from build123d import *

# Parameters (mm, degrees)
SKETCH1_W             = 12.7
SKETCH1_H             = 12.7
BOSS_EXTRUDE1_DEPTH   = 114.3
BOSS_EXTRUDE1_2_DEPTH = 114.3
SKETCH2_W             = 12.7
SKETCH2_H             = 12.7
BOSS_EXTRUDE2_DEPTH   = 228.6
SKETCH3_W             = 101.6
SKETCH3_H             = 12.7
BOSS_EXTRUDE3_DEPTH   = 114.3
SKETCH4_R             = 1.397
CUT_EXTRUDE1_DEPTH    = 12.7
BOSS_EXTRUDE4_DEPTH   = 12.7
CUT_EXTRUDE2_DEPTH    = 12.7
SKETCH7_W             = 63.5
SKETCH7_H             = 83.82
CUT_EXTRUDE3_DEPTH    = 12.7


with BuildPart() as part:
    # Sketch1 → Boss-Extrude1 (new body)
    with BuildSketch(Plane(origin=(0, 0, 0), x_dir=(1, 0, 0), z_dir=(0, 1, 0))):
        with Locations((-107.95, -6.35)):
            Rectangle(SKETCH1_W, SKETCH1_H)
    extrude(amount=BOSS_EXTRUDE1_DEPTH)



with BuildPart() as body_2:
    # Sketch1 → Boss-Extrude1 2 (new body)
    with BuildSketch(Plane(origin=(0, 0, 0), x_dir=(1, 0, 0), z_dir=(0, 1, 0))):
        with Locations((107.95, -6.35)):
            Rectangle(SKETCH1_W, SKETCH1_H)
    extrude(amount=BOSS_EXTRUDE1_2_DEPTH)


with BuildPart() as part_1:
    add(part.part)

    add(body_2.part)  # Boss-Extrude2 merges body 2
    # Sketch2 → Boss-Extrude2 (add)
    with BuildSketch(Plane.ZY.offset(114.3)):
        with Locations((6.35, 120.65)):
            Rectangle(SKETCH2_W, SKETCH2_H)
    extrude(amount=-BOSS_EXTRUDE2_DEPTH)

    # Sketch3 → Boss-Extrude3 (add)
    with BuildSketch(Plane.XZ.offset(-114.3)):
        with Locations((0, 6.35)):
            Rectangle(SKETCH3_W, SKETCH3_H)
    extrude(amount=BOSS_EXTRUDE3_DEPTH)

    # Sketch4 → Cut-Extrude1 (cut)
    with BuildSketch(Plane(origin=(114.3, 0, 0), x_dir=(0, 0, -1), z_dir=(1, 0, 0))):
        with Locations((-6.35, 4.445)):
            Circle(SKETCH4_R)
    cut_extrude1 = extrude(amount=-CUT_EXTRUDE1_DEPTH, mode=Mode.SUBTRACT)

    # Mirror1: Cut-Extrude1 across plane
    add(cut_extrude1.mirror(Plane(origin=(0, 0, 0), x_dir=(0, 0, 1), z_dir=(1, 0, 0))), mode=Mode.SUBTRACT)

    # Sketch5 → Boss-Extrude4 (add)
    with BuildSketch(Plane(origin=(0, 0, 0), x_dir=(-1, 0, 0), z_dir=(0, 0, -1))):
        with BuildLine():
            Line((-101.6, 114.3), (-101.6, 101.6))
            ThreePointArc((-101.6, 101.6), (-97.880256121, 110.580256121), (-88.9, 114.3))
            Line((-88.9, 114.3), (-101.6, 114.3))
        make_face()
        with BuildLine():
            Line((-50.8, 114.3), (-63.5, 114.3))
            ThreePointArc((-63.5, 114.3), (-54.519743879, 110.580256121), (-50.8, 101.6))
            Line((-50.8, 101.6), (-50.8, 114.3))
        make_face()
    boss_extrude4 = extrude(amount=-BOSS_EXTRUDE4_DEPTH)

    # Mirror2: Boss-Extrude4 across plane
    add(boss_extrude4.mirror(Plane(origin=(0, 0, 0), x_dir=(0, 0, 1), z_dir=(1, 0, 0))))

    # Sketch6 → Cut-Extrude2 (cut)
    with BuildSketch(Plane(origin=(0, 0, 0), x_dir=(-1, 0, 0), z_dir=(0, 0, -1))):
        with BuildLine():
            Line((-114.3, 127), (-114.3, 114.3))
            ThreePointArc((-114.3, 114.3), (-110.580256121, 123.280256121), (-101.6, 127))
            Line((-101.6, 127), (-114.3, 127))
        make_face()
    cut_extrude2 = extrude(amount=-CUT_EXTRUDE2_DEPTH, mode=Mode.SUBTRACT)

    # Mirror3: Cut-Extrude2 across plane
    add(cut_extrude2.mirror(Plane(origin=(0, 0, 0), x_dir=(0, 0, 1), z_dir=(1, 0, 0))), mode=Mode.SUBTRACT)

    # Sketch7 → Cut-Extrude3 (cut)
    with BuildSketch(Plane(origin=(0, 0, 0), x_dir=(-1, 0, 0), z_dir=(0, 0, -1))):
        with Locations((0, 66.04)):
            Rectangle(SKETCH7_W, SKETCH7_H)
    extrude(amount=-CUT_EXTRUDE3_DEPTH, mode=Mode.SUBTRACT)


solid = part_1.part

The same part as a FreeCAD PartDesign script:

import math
import FreeCAD as App
import Part
import Sketcher

V = App.Vector
Q = App.Units.Quantity

doc = App.newDocument("Part")
body = doc.addObject("PartDesign::Body", "Body")

sketch1 = doc.addObject("Sketcher::SketchObject", "Sketch")
body.addObject(sketch1)
sketch1.AttachmentSupport = (doc.XZ_Plane, [""])
sketch1.MapMode = "FlatFace"
sketch1.addGeometry(Part.LineSegment(V(-114, 0, 0), V(-114, 13, 0)), False)
sketch1.addGeometry(Part.LineSegment(V(-114, 13, 0), V(-102, 13, 0)), False)
sketch1.addGeometry(Part.LineSegment(V(-102, 13, 0), V(-102, 0, 0)), False)
sketch1.addGeometry(Part.LineSegment(V(-102, 0, 0), V(-114, 0, 0)), False)
sketch1.addConstraint(Sketcher.Constraint("Coincident", 0, 2, 1, 1))
sketch1.addConstraint(Sketcher.Constraint("Coincident", 1, 2, 2, 1))
sketch1.addConstraint(Sketcher.Constraint("Coincident", 2, 2, 3, 1))
sketch1.addConstraint(Sketcher.Constraint("Coincident", 3, 2, 0, 1))
sketch1.addConstraint(Sketcher.Constraint("Vertical", 0))
sketch1.addConstraint(Sketcher.Constraint("Horizontal", 1))
sketch1.addConstraint(Sketcher.Constraint("Vertical", 2))
sketch1.addConstraint(Sketcher.Constraint("Horizontal", 3))
sketch1.addConstraint(Sketcher.Constraint("PointOnObject", 2, 2, -1))
sketch1.addConstraint(Sketcher.Constraint("Equal", 3, 0))
sketch1.addConstraint(Sketcher.Constraint("DistanceX", 1, 1, 1, 2, Q("0.5 in")))
sketch1.addConstraint(Sketcher.Constraint("DistanceX", 1, 2, -1, 1, Q("4 in")))
pad1 = doc.addObject("PartDesign::Pad", "Pad")
body.addObject(pad1)
pad1.Profile = sketch1
pad1.Length = Q("4.5 in")
pad1.Reversed = True
body2 = doc.addObject("PartDesign::Body", "Body001")

sketch2 = doc.addObject("Sketcher::SketchObject", "Sketch001")
body2.addObject(sketch2)
sketch2.AttachmentSupport = (doc.getObject("XZ_Plane001"), [""])
sketch2.MapMode = "FlatFace"
sketch2.addGeometry(Part.LineSegment(V(102, 0, 0), V(102, 13, 0)), False)
sketch2.addGeometry(Part.LineSegment(V(102, 13, 0), V(114, 13, 0)), False)
sketch2.addGeometry(Part.LineSegment(V(114, 13, 0), V(114, 0, 0)), False)
sketch2.addGeometry(Part.LineSegment(V(114, 0, 0), V(102, 0, 0)), False)
sketch2.addConstraint(Sketcher.Constraint("Coincident", 0, 2, 1, 1))
sketch2.addConstraint(Sketcher.Constraint("Coincident", 1, 2, 2, 1))
sketch2.addConstraint(Sketcher.Constraint("Coincident", 2, 2, 3, 1))
sketch2.addConstraint(Sketcher.Constraint("Coincident", 3, 2, 0, 1))
sketch2.addConstraint(Sketcher.Constraint("Vertical", 0))
sketch2.addConstraint(Sketcher.Constraint("Horizontal", 1))
sketch2.addConstraint(Sketcher.Constraint("Vertical", 2))
sketch2.addConstraint(Sketcher.Constraint("Horizontal", 3))
sketch2.addConstraint(Sketcher.Constraint("PointOnObject", 2, 2, -1))
sketch2.addConstraint(Sketcher.Constraint("Equal", 3, 0))
sketch2.addConstraint(Sketcher.Constraint("DistanceX", 1, 1, 1, 2, Q("0.5 in")))
sketch2.addConstraint(Sketcher.Constraint("DistanceX", -1, 1, 0, 2, Q("4 in")))
pad2 = doc.addObject("PartDesign::Pad", "Pad001")
body2.addObject(pad2)
pad2.Profile = sketch2
pad2.Length = Q("4.5 in")
pad2.Reversed = True
body.AllowCompound = True
doc.recompute()

boolean = doc.addObject("PartDesign::Boolean", "Boolean")
body.addObject(boolean)
boolean.Type = "Fuse"
boolean.addObjects([body2])

sketch3 = doc.addObject("Sketcher::SketchObject", "Sketch002")
body.addObject(sketch3)
sketch3.AttachmentSupport = (doc.YZ_Plane, [""])
sketch3.MapMode = "FlatFace"
sketch3.AttachmentOffset = App.Placement(V(0, 0, -4.5 * 25.4), App.Rotation())
sketch3.addGeometry(Part.LineSegment(V(127, 0, 0), V(114, 0, 0)), False)
sketch3.addGeometry(Part.LineSegment(V(114, 0, 0), V(114, 13, 0)), False)
sketch3.addGeometry(Part.LineSegment(V(114, 13, 0), V(127, 13, 0)), False)
sketch3.addGeometry(Part.LineSegment(V(127, 13, 0), V(127, 0, 0)), False)
sketch3.addConstraint(Sketcher.Constraint("Coincident", 0, 2, 1, 1))
sketch3.addConstraint(Sketcher.Constraint("Coincident", 1, 2, 2, 1))
sketch3.addConstraint(Sketcher.Constraint("Coincident", 2, 2, 3, 1))
sketch3.addConstraint(Sketcher.Constraint("Coincident", 3, 2, 0, 1))
sketch3.addConstraint(Sketcher.Constraint("Horizontal", 0))
sketch3.addConstraint(Sketcher.Constraint("Vertical", 1))
sketch3.addConstraint(Sketcher.Constraint("Horizontal", 2))
sketch3.addConstraint(Sketcher.Constraint("Vertical", 3))
sketch3.addConstraint(Sketcher.Constraint("PointOnObject", 0, 2, -1))
sketch3.addConstraint(Sketcher.Constraint("Equal", 2, 1))
sketch3.addConstraint(Sketcher.Constraint("DistanceX", 0, 2, 0, 1, Q("0.5 in")))
sketch3.addConstraint(Sketcher.Constraint("DistanceX", -1, 1, 2, 2, Q("5 in")))
pad3 = doc.addObject("PartDesign::Pad", "Pad002")
body.addObject(pad3)
pad3.Profile = sketch3
pad3.Length = Q("9 in")

sketch4 = doc.addObject("Sketcher::SketchObject", "Sketch003")
body.addObject(sketch4)
sketch4.AttachmentSupport = (doc.XZ_Plane, [""])
sketch4.MapMode = "FlatFace"
sketch4.AttachmentOffset = App.Placement(V(0, 0, -4.5 * 25.4), App.Rotation())
sketch4.addGeometry(Part.LineSegment(V(-51, 13, 0), V(-51, 0, 0)), False)
sketch4.addGeometry(Part.LineSegment(V(-51, 0, 0), V(51, 0, 0)), False)
sketch4.addGeometry(Part.LineSegment(V(51, 0, 0), V(51, 13, 0)), False)
sketch4.addGeometry(Part.LineSegment(V(51, 13, 0), V(-51, 13, 0)), False)
sketch4.addConstraint(Sketcher.Constraint("Coincident", 0, 2, 1, 1))
sketch4.addConstraint(Sketcher.Constraint("Coincident", 1, 2, 2, 1))
sketch4.addConstraint(Sketcher.Constraint("Coincident", 2, 2, 3, 1))
sketch4.addConstraint(Sketcher.Constraint("Coincident", 3, 2, 0, 1))
sketch4.addConstraint(Sketcher.Constraint("Vertical", 0))
sketch4.addConstraint(Sketcher.Constraint("Horizontal", 1))
sketch4.addConstraint(Sketcher.Constraint("Vertical", 2))
sketch4.addConstraint(Sketcher.Constraint("Horizontal", 3))
sketch4.addConstraint(Sketcher.Constraint("Symmetric", 0, 2, 1, 2, -1, 1))
sketch4.addConstraint(Sketcher.Constraint("DistanceX", 1, 1, 1, 2, Q("4 in")))
sketch4.addConstraint(Sketcher.Constraint("DistanceY", 0, 2, 0, 1, Q("0.5 in")))
pad4 = doc.addObject("PartDesign::Pad", "Pad003")
body.addObject(pad4)
pad4.Profile = sketch4
pad4.Length = Q("4.5 in")

sketch5 = doc.addObject("Sketcher::SketchObject", "Sketch004")
body.addObject(sketch5)
sketch5.AttachmentSupport = (doc.YZ_Plane, [""])
sketch5.MapMode = "FlatFace"
sketch5.AttachmentOffset = App.Placement(V(0, 0, 4.5 * 25.4), App.Rotation())
sketch5.addGeometry(Part.Circle(V(4.4, 6.3, 0), V(0, 0, 1), 1.4), False)
sketch5.addConstraint(Sketcher.Constraint("Diameter", 0, Q("0.11 in")))
sketch5.addConstraint(Sketcher.Constraint("DistanceY", -1, 1, 0, 3, Q("0.25 in")))
sketch5.addConstraint(Sketcher.Constraint("DistanceX", -1, 1, 0, 3, Q("0.175 in")))
pocket1 = doc.addObject("PartDesign::Pocket", "Pocket")
body.addObject(pocket1)
pocket1.Profile = sketch5
pocket1.Length = Q("0.5 in")
doc.recompute()

mirrored = doc.addObject("PartDesign::Mirrored", "Mirrored")
body.addObject(mirrored)
mirrored.Originals = [pocket1]
mirrored.MirrorPlane = (doc.YZ_Plane, [""])
body.Tip = mirrored

sketch6 = doc.addObject("Sketcher::SketchObject", "Sketch005")
body.addObject(sketch6)
sketch6.AttachmentSupport = (doc.XY_Plane, [""])
sketch6.MapMode = "FlatFace"
sketch6.addGeometry(Part.LineSegment(V(102, 114, 0), V(102, 102, 0)), False)
sketch6.addGeometry(Part.ArcOfCircle(Part.Circle(V(89, 102, 0), V(0, 0, 1), 13), math.radians(0), math.radians(90)), False)
sketch6.addGeometry(Part.LineSegment(V(89, 114, 0), V(102, 114, 0)), False)
sketch6.addGeometry(Part.LineSegment(V(51, 114, 0), V(64, 114, 0)), False)
sketch6.addGeometry(Part.ArcOfCircle(Part.Circle(V(64, 102, 0), V(0, 0, 1), 13), math.radians(90), math.radians(180)), False)
sketch6.addGeometry(Part.LineSegment(V(51, 102, 0), V(51, 114, 0)), False)
sketch6.addConstraint(Sketcher.Constraint("Tangent", 0, 2, 1, 1))
sketch6.addConstraint(Sketcher.Constraint("Tangent", 1, 2, 2, 1))
sketch6.addConstraint(Sketcher.Constraint("Coincident", 2, 2, 0, 1))
sketch6.addConstraint(Sketcher.Constraint("Tangent", 3, 2, 4, 1))
sketch6.addConstraint(Sketcher.Constraint("Tangent", 4, 2, 5, 1))
sketch6.addConstraint(Sketcher.Constraint("Coincident", 5, 2, 3, 1))
sketch6.addConstraint(Sketcher.Constraint("Vertical", 0))
sketch6.addConstraint(Sketcher.Constraint("Horizontal", 2))
sketch6.addConstraint(Sketcher.Constraint("Horizontal", 3))
sketch6.addConstraint(Sketcher.Constraint("Vertical", 5))
sketch6.addConstraint(Sketcher.Constraint("Equal", 1, 4))
sketch6.addConstraint(Sketcher.Constraint("Horizontal", 1, 3, 4, 3))
sketch6.addConstraint(Sketcher.Constraint("Radius", 1, Q("0.5 in")))
sketch6.addConstraint(Sketcher.Constraint("DistanceY", -1, 1, 1, 3, Q("4 in")))
sketch6.addConstraint(Sketcher.Constraint("DistanceX", -1, 1, 0, 2, Q("4 in")))
sketch6.addConstraint(Sketcher.Constraint("DistanceX", -1, 1, 4, 2, Q("2 in")))
pad5 = doc.addObject("PartDesign::Pad", "Pad004")
body.addObject(pad5)
pad5.Profile = sketch6
pad5.Length = Q("0.5 in")
doc.recompute()

mirrored2 = doc.addObject("PartDesign::Mirrored", "Mirrored001")
body.addObject(mirrored2)
mirrored2.Originals = [pad5]
mirrored2.MirrorPlane = (doc.YZ_Plane, [""])
body.Tip = mirrored2

sketch7 = doc.addObject("Sketcher::SketchObject", "Sketch006")
body.addObject(sketch7)
sketch7.AttachmentSupport = (doc.XY_Plane, [""])
sketch7.MapMode = "FlatFace"
sketch7.addGeometry(Part.LineSegment(V(114, 127, 0), V(114, 114, 0)), False)
sketch7.addGeometry(Part.ArcOfCircle(Part.Circle(V(102, 114, 0), V(0, 0, 1), 13), math.radians(0), math.radians(90)), False)
sketch7.addGeometry(Part.LineSegment(V(102, 127, 0), V(114, 127, 0)), False)
sketch7.addConstraint(Sketcher.Constraint("Tangent", 0, 2, 1, 1))
sketch7.addConstraint(Sketcher.Constraint("Tangent", 1, 2, 2, 1))
sketch7.addConstraint(Sketcher.Constraint("Coincident", 2, 2, 0, 1))
sketch7.addConstraint(Sketcher.Constraint("Vertical", 0))
sketch7.addConstraint(Sketcher.Constraint("Horizontal", 2))
sketch7.addConstraint(Sketcher.Constraint("Radius", 1, Q("0.5 in")))
sketch7.addConstraint(Sketcher.Constraint("DistanceX", -1, 1, 1, 3, Q("4 in")))
sketch7.addConstraint(Sketcher.Constraint("DistanceY", -1, 1, 1, 2, Q("5 in")))
pocket2 = doc.addObject("PartDesign::Pocket", "Pocket001")
body.addObject(pocket2)
pocket2.Profile = sketch7
pocket2.Length = Q("0.5 in")
pocket2.Reversed = True
doc.recompute()

mirrored3 = doc.addObject("PartDesign::Mirrored", "Mirrored002")
body.addObject(mirrored3)
mirrored3.Originals = [pocket2]
mirrored3.MirrorPlane = (doc.YZ_Plane, [""])
body.Tip = mirrored3

sketch8 = doc.addObject("Sketcher::SketchObject", "Sketch007")
body.addObject(sketch8)
sketch8.AttachmentSupport = (doc.XY_Plane, [""])
sketch8.MapMode = "FlatFace"
sketch8.addGeometry(Part.LineSegment(V(32, 108, 0), V(32, 24, 0)), False)
sketch8.addGeometry(Part.LineSegment(V(32, 24, 0), V(-32, 24, 0)), False)
sketch8.addGeometry(Part.LineSegment(V(-32, 24, 0), V(-32, 108, 0)), False)
sketch8.addGeometry(Part.LineSegment(V(-32, 108, 0), V(32, 108, 0)), False)
sketch8.addConstraint(Sketcher.Constraint("Coincident", 0, 2, 1, 1))
sketch8.addConstraint(Sketcher.Constraint("Coincident", 1, 2, 2, 1))
sketch8.addConstraint(Sketcher.Constraint("Coincident", 2, 2, 3, 1))
sketch8.addConstraint(Sketcher.Constraint("Coincident", 3, 2, 0, 1))
sketch8.addConstraint(Sketcher.Constraint("Vertical", 0))
sketch8.addConstraint(Sketcher.Constraint("Horizontal", 1))
sketch8.addConstraint(Sketcher.Constraint("Vertical", 2))
sketch8.addConstraint(Sketcher.Constraint("Horizontal", 3))
sketch8.addConstraint(Sketcher.Constraint("DistanceX", 1, 2, 1, 1, Q("2.5 in")))
sketch8.addConstraint(Sketcher.Constraint("DistanceY", 0, 2, 0, 1, Q("3.3 in")))
sketch8.addConstraint(Sketcher.Constraint("DistanceX", -1, 1, 0, 2, Q("1.25 in")))
sketch8.addConstraint(Sketcher.Constraint("DistanceY", -1, 1, 0, 2, Q("0.95 in")))
pocket3 = doc.addObject("PartDesign::Pocket", "Pocket002")
body.addObject(pocket3)
pocket3.Profile = sketch8
pocket3.Length = Q("0.5 in")
pocket3.Reversed = True

doc.recompute()
